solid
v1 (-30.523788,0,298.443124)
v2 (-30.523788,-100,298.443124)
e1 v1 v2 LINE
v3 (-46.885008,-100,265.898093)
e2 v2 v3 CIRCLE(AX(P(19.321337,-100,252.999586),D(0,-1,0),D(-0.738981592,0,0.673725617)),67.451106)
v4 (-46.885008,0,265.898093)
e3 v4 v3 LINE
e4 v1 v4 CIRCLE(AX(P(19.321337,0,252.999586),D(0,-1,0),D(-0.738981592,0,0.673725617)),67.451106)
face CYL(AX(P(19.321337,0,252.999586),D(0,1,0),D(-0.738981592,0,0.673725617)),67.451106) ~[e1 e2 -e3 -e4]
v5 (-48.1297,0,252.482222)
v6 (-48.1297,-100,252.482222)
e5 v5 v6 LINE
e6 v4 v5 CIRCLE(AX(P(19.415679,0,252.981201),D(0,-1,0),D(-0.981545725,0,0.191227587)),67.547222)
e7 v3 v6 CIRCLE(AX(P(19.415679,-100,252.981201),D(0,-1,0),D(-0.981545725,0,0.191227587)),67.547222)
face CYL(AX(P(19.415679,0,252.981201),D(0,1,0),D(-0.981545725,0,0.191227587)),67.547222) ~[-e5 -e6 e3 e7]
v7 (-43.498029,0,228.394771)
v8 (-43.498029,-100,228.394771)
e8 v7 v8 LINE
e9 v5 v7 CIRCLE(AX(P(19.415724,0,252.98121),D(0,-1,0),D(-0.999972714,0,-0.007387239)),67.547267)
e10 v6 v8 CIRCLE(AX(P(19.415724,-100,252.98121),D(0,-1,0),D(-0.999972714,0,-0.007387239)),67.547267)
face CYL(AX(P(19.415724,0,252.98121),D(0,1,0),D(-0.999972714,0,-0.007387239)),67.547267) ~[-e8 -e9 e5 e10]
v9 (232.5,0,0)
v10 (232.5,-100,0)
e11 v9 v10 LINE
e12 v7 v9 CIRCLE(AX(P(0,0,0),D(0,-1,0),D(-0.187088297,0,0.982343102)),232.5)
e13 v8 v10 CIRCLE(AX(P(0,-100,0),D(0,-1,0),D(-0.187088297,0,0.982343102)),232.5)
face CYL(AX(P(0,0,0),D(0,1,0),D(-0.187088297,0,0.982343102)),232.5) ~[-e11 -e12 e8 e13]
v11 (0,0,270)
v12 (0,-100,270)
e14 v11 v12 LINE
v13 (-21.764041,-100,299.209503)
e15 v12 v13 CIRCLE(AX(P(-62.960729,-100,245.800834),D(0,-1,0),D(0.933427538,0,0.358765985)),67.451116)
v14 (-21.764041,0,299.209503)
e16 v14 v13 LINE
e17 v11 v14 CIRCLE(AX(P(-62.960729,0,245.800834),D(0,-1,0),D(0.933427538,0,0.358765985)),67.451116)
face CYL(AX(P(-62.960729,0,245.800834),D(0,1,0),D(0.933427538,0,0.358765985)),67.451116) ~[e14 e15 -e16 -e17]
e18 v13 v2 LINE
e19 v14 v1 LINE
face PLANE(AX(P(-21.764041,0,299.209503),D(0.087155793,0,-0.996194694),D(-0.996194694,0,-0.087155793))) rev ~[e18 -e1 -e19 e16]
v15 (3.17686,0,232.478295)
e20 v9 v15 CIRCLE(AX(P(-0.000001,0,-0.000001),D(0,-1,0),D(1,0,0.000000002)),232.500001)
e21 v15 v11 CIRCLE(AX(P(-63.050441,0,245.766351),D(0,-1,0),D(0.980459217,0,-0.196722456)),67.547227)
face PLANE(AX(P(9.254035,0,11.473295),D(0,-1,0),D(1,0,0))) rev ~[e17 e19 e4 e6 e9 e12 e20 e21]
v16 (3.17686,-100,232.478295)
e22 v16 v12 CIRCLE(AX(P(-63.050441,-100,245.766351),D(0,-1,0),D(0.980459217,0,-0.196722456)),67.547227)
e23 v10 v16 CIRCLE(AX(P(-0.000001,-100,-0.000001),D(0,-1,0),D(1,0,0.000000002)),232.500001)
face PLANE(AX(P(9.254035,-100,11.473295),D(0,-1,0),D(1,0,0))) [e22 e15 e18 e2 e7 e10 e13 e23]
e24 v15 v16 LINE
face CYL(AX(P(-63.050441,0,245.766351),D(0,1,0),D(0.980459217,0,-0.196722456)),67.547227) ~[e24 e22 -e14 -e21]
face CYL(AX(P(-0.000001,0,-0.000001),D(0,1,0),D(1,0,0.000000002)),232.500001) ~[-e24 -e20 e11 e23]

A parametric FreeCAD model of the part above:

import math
import FreeCAD as App
import Part
import Sketcher
from FreeCAD import Vector

doc = App.newDocument("Part")
body = doc.addObject("PartDesign::Body", "Body")

sketch1 = body.newObject("Sketcher::SketchObject", "Sketch")
sketch1.AttachmentSupport = (doc.getObject("XZ_Plane"), [""])
sketch1.MapMode = "FlatFace"
sketch1.addGeometry([
    Part.ArcOfCircle(Part.Circle(Vector(0, 0, 0), Vector(0, 0, 1), 232.5), math.radians(100.782909), math.radians(360)),
    Part.ArcOfCircle(Part.Circle(Vector(-0.000001, -0.000001, 0), Vector(0, 0, 1), 232.500001), math.radians(0), math.radians(89.217091)),
    Part.ArcOfCircle(Part.Circle(Vector(-63.050441, 245.766351, 0), Vector(0, 0, 1), 67.547227), math.radians(-11.345362), math.radians(21.024432)),
    Part.ArcOfCircle(Part.Circle(Vector(-62.960729, 245.800834, 0), Vector(0, 0, 1), 67.451116), math.radians(21.02443), math.radians(52.355262)),
    Part.LineSegment(Vector(-21.764041, 299.209503, 0), Vector(-30.523788, 298.443124, 0)),
    Part.ArcOfCircle(Part.Circle(Vector(19.321337, 252.999586, 0), Vector(0, 0, 1), 67.451106), math.radians(137.644735), math.radians(168.975571)),
    Part.ArcOfCircle(Part.Circle(Vector(19.415679, 252.981201, 0), Vector(0, 0, 1), 67.547222), math.radians(168.975567), math.radians(180.423254)),
    Part.ArcOfCircle(Part.Circle(Vector(19.415724, 252.98121, 0), Vector(0, 0, 1), 67.547267), math.radians(-179.576739), math.radians(-158.654644)),
], False)
sketch1.addConstraint([
    Sketcher.Constraint("Coincident", 0, 2, 1, 1),
    Sketcher.Constraint("Coincident", 1, 2, 2, 1),
    Sketcher.Constraint("Coincident", 2, 2, 3, 1),
    Sketcher.Constraint("Coincident", 3, 2, 4, 1),
    Sketcher.Constraint("Coincident", 4, 2, 5, 1),
    Sketcher.Constraint("Coincident", 5, 2, 6, 1),
    Sketcher.Constraint("Coincident", 6, 2, 7, 1),
    Sketcher.Constraint("Coincident", 7, 2, 0, 1),
    Sketcher.Constraint("Coincident", 0, 3, -1, 1),
    Sketcher.Constraint("Coincident", 1, 3, -1, 1),
    Sketcher.Constraint("PointOnObject", 0, 2, -1),
    Sketcher.Constraint("PointOnObject", 2, 2, -2),
    Sketcher.Constraint("Radius", 0, 232.5),
    Sketcher.Constraint("DistanceY", -1, 1, 2, 2, 270.0),
    Sketcher.Constraint("Radius", 2, 67.547227),
    Sketcher.Constraint("Radius", 3, 67.451116),
    Sketcher.Constraint("Radius", 5, 67.451106),
    Sketcher.Constraint("Radius", 6, 67.547222),
    Sketcher.Constraint("Radius", 7, 67.547267),
    Sketcher.Constraint("DistanceY", -1, 1, 6, 3, 252.981201),
    Sketcher.Constraint("DistanceX", 6, 2, -1, 1, 48.1297),
    Sketcher.Constraint("DistanceX", 3, 3, 7, 2, 19.4627),
    Sketcher.Constraint("DistanceX", 2, 3, -1, 1, 63.050441),
    Sketcher.Constraint("DistanceX", 3, 3, -1, 1, 62.960729),
    Sketcher.Constraint("DistanceX", -1, 1, 6, 3, 19.415679),
    Sketcher.Constraint("DistanceX", 3, 2, -1, 1, 21.764041),
    Sketcher.Constraint("DistanceX", 2, 3, 5, 3, 82.371778),
    Sketcher.Constraint("DistanceY", 4, 2, 3, 2, 0.766379),
    Sketcher.Constraint("DistanceX", 3, 3, 5, 2, 16.075721),
])
pad1 = body.newObject("PartDesign::Pad", "Pad")
pad1.Profile = sketch1
pad1.Length = 100

doc.recompute()
